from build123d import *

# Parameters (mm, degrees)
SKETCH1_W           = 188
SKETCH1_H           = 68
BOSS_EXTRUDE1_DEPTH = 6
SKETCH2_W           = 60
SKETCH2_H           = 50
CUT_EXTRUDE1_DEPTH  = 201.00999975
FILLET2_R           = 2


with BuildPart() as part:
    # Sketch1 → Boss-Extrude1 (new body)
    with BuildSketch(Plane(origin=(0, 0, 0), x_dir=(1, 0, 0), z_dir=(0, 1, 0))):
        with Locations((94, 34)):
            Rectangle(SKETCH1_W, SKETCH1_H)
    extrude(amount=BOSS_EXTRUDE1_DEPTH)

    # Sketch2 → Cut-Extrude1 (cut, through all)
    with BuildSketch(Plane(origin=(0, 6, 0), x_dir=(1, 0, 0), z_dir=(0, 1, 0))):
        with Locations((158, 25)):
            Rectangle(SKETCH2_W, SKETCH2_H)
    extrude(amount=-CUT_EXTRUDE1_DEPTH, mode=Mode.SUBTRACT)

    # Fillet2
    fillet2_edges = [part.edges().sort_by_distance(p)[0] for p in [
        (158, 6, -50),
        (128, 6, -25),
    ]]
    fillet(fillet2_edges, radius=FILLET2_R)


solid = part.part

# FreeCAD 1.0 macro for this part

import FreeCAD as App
import Part
import Sketcher


def edges_at(feature, points):
    """Names of the edges that pass closest to the given points."""
    edges = feature.Shape.Edges
    near = lambda p: min(range(len(edges)), key=lambda i: edges[i].distToShape(Part.Vertex(*p))[0])
    return sorted({f"Edge{near(p) + 1}" for p in points})

doc = App.newDocument("Part")
body = doc.addObject("PartDesign::Body", "Body")

sketch1 = body.newObject("Sketcher::SketchObject", "Sketch")
sketch1.AttachmentSupport = (doc.getObject("XZ_Plane"), [""])
sketch1.MapMode = "FlatFace"
sketch1.addGeometry(Part.LineSegment(App.Vector(0, -68, 0), App.Vector(0, 0, 0)), False)
sketch1.addGeometry(Part.LineSegment(App.Vector(0, 0, 0), App.Vector(188, 0, 0)), False)
sketch1.addGeometry(Part.LineSegment(App.Vector(188, 0, 0), App.Vector(188, -68, 0)), False)
sketch1.addGeometry(Part.LineSegment(App.Vector(188, -68, 0), App.Vector(0, -68, 0)), False)
sketch1.addConstraint(Sketcher.Constraint("Coincident", 0, 2, 1, 1))
sketch1.addConstraint(Sketcher.Constraint("Coincident", 1, 2, 2, 1))
sketch1.addConstraint(Sketcher.Constraint("Coincident", 2, 2, 3, 1))
sketch1.addConstraint(Sketcher.Constraint("Coincident", 3, 2, 0, 1))
sketch1.addConstraint(Sketcher.Constraint("Vertical", 0))
sketch1.addConstraint(Sketcher.Constraint("Horizontal", 1))
sketch1.addConstraint(Sketcher.Constraint("Vertical", 2))
sketch1.addConstraint(Sketcher.Constraint("Horizontal", 3))
sketch1.addConstraint(Sketcher.Constraint("Coincident", 0, 2, -1, 1))
sketch1.addConstraint(Sketcher.Constraint("DistanceX", 1, 1, 1, 2, 188.0))
sketch1.addConstraint(Sketcher.Constraint("DistanceY", 0, 1, 0, 2, 68.0))
pad1 = body.newObject("PartDesign::Pad", "Pad")
pad1.Profile = sketch1
pad1.Length = 6
pad1.Reversed = True

sketch2 = body.newObject("Sketcher::SketchObject", "Sketch001")
sketch2.AttachmentSupport = (doc.getObject("XZ_Plane"), [""])
sketch2.MapMode = "FlatFace"
sketch2.AttachmentOffset = App.Placement(App.Vector(0, 0, -6), App.Rotation())
sketch2.addGeometry(Part.LineSegment(App.Vector(128, -50, 0), App.Vector(128, 0, 0)), False)
sketch2.addGeometry(Part.LineSegment(App.Vector(128, 0, 0), App.Vector(188, 0, 0)), False)
sketch2.addGeometry(Part.LineSegment(App.Vector(188, 0, 0), App.Vector(188, -50, 0)), False)
sketch2.addGeometry(Part.LineSegment(App.Vector(188, -50, 0), App.Vector(128, -50, 0)), False)
sketch2.addConstraint(Sketcher.Constraint("Coincident", 0, 2, 1, 1))
sketch2.addConstraint(Sketcher.Constraint("Coincident", 1, 2, 2, 1))
sketch2.addConstraint(Sketcher.Constraint("Coincident", 2, 2, 3, 1))
sketch2.addConstraint(Sketcher.Constraint("Coincident", 3, 2, 0, 1))
sketch2.addConstraint(Sketcher.Constraint("Vertical", 0))
sketch2.addConstraint(Sketcher.Constraint("Horizontal", 1))
sketch2.addConstraint(Sketcher.Constraint("Vertical", 2))
sketch2.addConstraint(Sketcher.Constraint("Horizontal", 3))
sketch2.addConstraint(Sketcher.Constraint("PointOnObject", 0, 2, -1))
sketch2.addConstraint(Sketcher.Constraint("DistanceX", 1, 1, 1, 2, 60.0))
sketch2.addConstraint(Sketcher.Constraint("DistanceY", 0, 1, 0, 2, 50.0))
sketch2.addConstraint(Sketcher.Constraint("DistanceX", -1, 1, 0, 2, 128.0))
pocket1 = body.newObject("PartDesign::Pocket", "Pocket")
pocket1.Profile = sketch2
pocket1.Type = "ThroughAll"
pocket1.Reversed = True
doc.recompute()

fillet = body.newObject("PartDesign::Fillet", "Fillet")
fillet.Base = (pocket1, edges_at(pocket1, [(158, 6, -50), (128, 6, -25)]))
fillet.Radius = 2

doc.recompute()
